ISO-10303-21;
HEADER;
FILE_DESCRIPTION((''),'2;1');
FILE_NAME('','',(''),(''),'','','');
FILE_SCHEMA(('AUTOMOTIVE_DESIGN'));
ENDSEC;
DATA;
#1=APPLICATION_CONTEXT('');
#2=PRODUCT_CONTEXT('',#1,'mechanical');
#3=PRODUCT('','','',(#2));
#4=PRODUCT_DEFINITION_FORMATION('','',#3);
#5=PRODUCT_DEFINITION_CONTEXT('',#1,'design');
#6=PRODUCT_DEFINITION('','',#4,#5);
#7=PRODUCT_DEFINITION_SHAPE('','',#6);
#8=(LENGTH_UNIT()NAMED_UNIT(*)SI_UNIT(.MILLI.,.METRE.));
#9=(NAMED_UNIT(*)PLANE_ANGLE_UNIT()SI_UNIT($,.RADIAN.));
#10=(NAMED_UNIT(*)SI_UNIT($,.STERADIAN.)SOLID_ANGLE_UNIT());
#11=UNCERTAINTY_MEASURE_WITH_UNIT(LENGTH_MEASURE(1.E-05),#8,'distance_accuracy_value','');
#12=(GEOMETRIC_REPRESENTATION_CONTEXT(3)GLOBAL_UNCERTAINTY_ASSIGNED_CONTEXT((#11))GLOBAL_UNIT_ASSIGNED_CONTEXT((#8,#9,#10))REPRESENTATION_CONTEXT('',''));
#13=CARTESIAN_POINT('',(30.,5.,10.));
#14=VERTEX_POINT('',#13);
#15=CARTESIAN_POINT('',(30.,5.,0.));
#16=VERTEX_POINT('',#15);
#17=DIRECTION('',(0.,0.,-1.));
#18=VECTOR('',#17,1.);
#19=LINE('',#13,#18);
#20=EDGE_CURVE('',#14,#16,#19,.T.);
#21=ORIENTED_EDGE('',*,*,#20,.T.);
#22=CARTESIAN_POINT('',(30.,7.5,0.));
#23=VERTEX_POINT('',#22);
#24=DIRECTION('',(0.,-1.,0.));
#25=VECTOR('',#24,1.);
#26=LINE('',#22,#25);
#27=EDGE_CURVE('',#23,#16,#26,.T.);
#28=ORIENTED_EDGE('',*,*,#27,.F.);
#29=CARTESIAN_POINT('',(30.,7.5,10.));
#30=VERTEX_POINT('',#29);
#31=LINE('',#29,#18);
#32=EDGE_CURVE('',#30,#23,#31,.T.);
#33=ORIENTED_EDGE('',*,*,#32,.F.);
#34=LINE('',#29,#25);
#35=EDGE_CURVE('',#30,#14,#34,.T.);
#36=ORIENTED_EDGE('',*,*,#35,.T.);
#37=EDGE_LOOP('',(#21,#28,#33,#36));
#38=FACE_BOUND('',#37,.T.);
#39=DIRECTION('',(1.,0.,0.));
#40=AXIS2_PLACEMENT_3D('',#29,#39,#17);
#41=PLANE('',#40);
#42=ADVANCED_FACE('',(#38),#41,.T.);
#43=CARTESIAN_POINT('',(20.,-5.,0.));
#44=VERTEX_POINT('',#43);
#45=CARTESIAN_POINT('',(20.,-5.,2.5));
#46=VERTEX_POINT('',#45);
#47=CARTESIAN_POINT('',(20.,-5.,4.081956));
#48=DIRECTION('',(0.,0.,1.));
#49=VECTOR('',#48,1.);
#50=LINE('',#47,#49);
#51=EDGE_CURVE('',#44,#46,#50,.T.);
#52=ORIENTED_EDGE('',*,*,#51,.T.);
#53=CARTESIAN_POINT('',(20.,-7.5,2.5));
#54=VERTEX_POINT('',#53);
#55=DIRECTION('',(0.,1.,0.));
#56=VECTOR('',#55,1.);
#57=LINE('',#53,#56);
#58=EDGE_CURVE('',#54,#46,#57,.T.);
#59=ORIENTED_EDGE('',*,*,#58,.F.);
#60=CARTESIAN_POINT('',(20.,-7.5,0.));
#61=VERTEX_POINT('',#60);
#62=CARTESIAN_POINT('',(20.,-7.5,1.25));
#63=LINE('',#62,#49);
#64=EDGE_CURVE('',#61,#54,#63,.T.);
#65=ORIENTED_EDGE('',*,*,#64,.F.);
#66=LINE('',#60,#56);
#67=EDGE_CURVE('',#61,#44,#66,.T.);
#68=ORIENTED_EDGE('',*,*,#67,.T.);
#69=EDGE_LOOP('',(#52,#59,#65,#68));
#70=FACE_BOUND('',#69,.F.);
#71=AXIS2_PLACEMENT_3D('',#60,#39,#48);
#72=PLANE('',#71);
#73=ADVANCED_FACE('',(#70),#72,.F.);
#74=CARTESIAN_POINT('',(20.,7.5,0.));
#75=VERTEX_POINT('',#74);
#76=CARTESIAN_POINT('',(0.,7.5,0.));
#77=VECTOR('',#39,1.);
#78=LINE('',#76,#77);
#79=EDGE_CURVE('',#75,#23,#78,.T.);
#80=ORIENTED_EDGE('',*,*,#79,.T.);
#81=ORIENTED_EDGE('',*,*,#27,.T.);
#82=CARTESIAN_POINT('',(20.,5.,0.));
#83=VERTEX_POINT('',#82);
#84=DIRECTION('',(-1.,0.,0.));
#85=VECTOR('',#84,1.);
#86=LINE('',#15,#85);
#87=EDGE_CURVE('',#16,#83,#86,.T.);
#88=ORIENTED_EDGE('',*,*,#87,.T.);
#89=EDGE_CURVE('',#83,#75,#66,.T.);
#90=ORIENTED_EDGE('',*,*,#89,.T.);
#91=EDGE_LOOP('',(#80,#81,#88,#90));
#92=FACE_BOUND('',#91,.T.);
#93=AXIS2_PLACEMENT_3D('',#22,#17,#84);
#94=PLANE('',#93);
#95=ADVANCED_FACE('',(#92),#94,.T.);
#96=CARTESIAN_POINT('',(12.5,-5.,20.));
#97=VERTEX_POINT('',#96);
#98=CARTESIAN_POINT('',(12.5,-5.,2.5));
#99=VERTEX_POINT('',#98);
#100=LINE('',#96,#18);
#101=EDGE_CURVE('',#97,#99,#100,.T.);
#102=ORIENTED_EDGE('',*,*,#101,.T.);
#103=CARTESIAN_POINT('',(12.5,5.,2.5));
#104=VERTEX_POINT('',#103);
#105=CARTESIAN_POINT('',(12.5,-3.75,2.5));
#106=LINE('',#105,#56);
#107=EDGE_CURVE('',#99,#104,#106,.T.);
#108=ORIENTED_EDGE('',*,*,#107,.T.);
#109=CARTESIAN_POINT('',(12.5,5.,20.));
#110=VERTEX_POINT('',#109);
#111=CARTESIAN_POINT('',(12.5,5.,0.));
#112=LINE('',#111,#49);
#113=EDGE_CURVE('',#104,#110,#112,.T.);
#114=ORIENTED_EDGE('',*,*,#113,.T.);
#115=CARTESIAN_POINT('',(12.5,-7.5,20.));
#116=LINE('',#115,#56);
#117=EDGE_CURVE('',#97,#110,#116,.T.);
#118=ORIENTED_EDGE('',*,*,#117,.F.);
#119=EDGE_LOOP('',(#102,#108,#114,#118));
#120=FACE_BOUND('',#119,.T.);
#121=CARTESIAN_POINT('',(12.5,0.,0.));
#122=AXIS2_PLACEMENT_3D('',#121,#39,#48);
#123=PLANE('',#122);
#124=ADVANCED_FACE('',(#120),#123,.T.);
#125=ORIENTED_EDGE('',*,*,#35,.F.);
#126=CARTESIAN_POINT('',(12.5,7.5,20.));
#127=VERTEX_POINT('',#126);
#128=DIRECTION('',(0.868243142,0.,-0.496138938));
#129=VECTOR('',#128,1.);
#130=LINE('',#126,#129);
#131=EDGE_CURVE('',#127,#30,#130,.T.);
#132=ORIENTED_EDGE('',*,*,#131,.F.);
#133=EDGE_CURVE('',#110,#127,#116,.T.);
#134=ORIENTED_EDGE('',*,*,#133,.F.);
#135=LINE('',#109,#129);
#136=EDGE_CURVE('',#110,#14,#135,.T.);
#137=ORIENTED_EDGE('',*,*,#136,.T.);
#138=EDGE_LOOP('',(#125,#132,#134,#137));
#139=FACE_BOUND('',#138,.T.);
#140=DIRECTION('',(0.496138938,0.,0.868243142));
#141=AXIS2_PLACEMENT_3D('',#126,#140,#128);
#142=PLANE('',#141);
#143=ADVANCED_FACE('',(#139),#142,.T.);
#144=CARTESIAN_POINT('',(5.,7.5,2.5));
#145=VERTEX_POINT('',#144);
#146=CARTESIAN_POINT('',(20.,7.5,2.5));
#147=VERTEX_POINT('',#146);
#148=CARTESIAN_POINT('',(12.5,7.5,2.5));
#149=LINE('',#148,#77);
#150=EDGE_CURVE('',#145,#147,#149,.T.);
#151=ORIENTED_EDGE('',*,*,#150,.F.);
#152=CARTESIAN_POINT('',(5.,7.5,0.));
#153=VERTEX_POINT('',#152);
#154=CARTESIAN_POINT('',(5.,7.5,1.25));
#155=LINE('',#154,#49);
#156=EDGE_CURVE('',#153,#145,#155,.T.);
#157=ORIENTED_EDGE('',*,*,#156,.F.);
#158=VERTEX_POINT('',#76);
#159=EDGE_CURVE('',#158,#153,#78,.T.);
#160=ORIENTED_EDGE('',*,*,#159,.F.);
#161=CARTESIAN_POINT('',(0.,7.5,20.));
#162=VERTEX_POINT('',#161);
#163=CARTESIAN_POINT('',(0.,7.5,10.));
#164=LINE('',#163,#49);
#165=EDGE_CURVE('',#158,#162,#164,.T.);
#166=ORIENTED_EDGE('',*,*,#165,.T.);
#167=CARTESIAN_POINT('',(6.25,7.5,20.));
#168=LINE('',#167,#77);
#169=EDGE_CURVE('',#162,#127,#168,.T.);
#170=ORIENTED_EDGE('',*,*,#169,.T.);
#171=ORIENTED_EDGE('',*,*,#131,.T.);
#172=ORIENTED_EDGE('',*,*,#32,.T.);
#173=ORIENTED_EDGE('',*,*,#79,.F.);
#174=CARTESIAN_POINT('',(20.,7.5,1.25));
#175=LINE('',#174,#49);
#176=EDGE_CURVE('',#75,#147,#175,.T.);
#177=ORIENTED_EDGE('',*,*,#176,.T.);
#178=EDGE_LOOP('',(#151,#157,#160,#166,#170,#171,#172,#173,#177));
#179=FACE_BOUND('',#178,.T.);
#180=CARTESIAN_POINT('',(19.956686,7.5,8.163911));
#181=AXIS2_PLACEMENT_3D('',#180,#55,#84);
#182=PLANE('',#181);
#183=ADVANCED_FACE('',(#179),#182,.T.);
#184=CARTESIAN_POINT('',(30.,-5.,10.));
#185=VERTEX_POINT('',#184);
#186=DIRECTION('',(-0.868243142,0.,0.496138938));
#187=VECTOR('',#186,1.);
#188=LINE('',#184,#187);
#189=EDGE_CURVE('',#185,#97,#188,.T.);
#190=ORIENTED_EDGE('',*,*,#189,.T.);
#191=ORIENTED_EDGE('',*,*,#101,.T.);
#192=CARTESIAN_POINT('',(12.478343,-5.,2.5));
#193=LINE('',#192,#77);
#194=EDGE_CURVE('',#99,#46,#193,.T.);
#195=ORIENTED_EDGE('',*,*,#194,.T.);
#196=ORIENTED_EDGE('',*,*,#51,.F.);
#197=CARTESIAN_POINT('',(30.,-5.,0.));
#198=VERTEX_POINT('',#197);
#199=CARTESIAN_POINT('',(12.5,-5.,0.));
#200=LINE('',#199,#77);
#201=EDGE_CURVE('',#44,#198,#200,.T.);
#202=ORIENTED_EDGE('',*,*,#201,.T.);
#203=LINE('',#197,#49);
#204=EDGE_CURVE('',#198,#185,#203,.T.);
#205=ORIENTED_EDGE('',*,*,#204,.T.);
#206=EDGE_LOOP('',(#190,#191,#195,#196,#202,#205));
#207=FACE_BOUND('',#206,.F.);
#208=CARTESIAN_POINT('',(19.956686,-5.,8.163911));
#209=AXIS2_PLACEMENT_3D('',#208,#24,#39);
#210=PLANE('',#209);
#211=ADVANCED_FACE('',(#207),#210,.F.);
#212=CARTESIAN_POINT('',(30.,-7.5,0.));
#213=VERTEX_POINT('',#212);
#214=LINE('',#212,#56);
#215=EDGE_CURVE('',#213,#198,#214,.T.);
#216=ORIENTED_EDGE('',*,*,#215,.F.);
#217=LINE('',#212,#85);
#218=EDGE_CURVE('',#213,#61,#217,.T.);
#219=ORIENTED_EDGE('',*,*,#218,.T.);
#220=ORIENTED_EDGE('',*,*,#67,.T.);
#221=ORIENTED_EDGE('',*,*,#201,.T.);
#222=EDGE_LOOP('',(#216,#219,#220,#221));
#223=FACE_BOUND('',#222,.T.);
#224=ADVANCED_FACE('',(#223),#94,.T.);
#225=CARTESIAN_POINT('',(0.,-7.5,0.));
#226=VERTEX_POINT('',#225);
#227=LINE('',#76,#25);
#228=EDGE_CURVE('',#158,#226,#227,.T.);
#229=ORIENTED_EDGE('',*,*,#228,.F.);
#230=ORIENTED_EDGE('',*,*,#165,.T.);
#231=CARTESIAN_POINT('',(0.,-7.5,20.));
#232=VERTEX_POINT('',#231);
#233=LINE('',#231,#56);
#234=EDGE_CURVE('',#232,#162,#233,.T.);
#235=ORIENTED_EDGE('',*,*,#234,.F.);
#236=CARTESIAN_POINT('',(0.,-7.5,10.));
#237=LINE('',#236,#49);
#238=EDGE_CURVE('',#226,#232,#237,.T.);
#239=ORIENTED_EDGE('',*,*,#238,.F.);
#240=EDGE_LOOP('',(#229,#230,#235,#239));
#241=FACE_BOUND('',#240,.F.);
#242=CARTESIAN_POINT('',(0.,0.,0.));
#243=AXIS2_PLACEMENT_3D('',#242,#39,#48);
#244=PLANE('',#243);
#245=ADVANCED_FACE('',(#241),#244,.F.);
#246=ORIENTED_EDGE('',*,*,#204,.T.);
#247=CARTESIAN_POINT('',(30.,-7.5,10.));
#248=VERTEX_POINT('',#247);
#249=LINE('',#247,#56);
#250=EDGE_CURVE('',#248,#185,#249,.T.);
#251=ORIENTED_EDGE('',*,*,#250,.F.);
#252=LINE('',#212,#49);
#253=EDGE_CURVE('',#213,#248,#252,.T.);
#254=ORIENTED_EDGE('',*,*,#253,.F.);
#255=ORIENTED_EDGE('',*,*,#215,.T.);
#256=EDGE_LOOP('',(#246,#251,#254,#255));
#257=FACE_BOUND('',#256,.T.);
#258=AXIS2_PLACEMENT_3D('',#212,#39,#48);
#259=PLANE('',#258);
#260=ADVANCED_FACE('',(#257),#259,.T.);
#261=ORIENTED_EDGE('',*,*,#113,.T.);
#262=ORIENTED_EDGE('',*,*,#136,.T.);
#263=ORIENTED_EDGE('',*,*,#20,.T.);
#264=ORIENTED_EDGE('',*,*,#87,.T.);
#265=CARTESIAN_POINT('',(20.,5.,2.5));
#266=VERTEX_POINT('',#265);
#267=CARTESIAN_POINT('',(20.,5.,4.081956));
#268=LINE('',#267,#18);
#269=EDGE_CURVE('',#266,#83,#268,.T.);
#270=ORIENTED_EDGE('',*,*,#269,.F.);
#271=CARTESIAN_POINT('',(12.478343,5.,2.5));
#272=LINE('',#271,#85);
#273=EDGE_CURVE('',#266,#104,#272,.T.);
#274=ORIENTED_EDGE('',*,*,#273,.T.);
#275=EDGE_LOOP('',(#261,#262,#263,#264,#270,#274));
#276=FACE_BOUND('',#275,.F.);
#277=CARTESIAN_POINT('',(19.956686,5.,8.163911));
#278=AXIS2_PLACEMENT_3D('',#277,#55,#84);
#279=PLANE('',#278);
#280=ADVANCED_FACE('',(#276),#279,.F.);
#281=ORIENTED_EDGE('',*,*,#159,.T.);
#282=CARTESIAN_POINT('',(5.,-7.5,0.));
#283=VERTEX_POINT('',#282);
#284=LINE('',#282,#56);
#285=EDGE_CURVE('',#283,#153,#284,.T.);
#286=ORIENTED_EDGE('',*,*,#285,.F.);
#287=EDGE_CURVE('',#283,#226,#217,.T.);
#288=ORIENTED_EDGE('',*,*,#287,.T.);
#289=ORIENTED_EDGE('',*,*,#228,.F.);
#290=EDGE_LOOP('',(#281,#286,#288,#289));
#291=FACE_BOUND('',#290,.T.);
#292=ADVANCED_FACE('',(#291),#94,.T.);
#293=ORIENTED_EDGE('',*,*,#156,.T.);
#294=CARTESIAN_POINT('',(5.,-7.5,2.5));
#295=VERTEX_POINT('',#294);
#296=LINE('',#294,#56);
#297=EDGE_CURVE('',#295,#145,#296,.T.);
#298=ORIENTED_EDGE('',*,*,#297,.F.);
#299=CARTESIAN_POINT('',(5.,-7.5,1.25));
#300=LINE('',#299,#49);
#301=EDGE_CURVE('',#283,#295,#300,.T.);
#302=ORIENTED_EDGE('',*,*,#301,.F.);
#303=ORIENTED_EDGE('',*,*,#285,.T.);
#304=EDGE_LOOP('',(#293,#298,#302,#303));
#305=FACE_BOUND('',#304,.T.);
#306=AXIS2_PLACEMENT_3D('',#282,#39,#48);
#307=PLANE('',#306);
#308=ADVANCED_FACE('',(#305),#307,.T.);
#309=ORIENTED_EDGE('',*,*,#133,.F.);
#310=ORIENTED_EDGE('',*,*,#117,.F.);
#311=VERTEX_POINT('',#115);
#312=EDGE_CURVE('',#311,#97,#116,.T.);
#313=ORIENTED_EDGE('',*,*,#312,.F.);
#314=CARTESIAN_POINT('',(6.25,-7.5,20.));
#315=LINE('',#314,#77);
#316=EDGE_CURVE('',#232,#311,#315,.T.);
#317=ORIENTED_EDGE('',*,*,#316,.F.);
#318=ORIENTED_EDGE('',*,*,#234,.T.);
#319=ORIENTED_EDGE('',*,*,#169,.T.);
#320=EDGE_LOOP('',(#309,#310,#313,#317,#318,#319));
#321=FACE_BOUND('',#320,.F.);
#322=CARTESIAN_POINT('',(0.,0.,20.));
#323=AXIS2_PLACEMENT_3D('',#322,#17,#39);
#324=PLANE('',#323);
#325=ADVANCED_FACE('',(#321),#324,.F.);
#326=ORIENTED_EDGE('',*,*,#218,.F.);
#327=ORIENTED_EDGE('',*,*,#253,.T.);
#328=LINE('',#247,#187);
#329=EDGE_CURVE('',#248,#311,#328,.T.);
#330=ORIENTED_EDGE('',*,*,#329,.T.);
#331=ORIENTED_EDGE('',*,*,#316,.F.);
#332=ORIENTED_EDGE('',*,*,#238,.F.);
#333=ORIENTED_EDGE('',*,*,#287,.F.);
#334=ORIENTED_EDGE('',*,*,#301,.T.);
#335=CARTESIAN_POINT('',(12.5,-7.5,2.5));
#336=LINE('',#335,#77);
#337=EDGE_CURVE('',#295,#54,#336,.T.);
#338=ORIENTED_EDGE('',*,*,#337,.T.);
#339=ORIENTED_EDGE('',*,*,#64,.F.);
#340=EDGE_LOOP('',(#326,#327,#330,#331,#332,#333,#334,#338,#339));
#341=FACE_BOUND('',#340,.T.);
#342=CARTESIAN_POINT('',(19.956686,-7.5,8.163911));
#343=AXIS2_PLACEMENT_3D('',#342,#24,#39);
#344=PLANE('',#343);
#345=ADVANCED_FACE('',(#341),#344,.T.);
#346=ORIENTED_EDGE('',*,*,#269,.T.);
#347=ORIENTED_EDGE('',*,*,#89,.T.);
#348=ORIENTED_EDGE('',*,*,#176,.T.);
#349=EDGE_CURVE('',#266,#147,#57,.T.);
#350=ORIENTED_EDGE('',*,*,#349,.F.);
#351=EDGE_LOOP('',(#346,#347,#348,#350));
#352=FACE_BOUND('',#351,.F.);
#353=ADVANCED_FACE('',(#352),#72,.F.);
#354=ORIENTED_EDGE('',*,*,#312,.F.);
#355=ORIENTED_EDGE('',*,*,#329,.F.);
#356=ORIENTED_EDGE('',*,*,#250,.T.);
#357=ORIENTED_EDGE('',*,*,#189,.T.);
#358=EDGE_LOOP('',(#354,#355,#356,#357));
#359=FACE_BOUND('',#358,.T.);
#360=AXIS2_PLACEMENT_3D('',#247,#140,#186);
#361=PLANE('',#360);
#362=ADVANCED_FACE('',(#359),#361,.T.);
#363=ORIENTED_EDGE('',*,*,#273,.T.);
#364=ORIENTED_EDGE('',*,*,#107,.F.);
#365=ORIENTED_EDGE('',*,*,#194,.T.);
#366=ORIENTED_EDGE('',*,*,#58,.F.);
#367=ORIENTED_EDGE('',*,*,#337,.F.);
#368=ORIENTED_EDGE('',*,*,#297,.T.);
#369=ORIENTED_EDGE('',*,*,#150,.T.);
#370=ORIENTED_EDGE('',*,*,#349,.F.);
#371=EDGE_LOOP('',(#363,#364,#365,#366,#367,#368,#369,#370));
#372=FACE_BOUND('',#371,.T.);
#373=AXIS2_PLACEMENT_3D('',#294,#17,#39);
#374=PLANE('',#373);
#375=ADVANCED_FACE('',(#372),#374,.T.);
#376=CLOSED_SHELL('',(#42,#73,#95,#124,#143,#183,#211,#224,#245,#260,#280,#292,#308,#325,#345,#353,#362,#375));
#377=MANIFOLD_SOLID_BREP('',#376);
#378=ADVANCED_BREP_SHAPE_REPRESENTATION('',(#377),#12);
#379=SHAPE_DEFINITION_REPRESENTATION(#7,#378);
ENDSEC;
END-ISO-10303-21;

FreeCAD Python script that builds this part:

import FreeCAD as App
import Part
import Sketcher

V = App.Vector

doc = App.newDocument("Part")
body = doc.addObject("PartDesign::Body", "Body")

# Sketch on XZ plane
sketch1 = doc.addObject("Sketcher::SketchObject", "Sketch")
body.addObject(sketch1)
sketch1.AttachmentSupport = (doc.XZ_Plane, [""])
sketch1.MapMode = "FlatFace"
sketch1.addGeometry(Part.LineSegment(V(0, 20, 0), V(0, 0, 0)), False)
sketch1.addGeometry(Part.LineSegment(V(0, 0, 0), V(12, 0, 0)), False)
sketch1.addGeometry(Part.LineSegment(V(12, 0, 0), V(12, 20, 0)), False)
sketch1.addGeometry(Part.LineSegment(V(12, 20, 0), V(0, 20, 0)), False)
sketch1.addConstraint(Sketcher.Constraint("Coincident", 0, 2, 1, 1))
sketch1.addConstraint(Sketcher.Constraint("Coincident", 1, 2, 2, 1))
sketch1.addConstraint(Sketcher.Constraint("Coincident", 2, 2, 3, 1))
sketch1.addConstraint(Sketcher.Constraint("Coincident", 3, 2, 0, 1))
sketch1.addConstraint(Sketcher.Constraint("Vertical", 0))
sketch1.addConstraint(Sketcher.Constraint("Horizontal", 1))
sketch1.addConstraint(Sketcher.Constraint("Vertical", 2))
sketch1.addConstraint(Sketcher.Constraint("Horizontal", 3))
sketch1.addConstraint(Sketcher.Constraint("Coincident", 0, 2, -1, 1))
sketch1.addConstraint(Sketcher.Constraint("DistanceY", 0, 2, 0, 1, 20.0))
sketch1.addConstraint(Sketcher.Constraint("DistanceX", 1, 1, 1, 2, 12.5))
pad1 = doc.addObject("PartDesign::Pad", "Pad")
body.addObject(pad1)
pad1.Profile = sketch1
pad1.Length = 15
pad1.Midplane = True

# Sketch on XZ plane
sketch2 = doc.addObject("Sketcher::SketchObject", "Sketch001")
body.addObject(sketch2)
sketch2.AttachmentSupport = (doc.XZ_Plane, [""])
sketch2.MapMode = "FlatFace"
sketch2.AttachmentOffset = App.Placement(V(0, 0, 7.5), App.Rotation())
sketch2.addGeometry(Part.LineSegment(V(12, 20, 0), V(12, 0, 0)), False)
sketch2.addGeometry(Part.LineSegment(V(12, 0, 0), V(30, 0, 0)), False)
sketch2.addGeometry(Part.LineSegment(V(30, 0, 0), V(30, 10, 0)), False)
sketch2.addGeometry(Part.LineSegment(V(30, 10, 0), V(12, 20, 0)), False)
sketch2.addConstraint(Sketcher.Constraint("Coincident", 0, 2, 1, 1))
sketch2.addConstraint(Sketcher.Constraint("Coincident", 1, 2, 2, 1))
sketch2.addConstraint(Sketcher.Constraint("Coincident", 2, 2, 3, 1))
sketch2.addConstraint(Sketcher.Constraint("Coincident", 3, 2, 0, 1))
sketch2.addConstraint(Sketcher.Constraint("Vertical", 0))
sketch2.addConstraint(Sketcher.Constraint("Horizontal", 1))
sketch2.addConstraint(Sketcher.Constraint("Vertical", 2))
sketch2.addConstraint(Sketcher.Constraint("PointOnObject", 0, 2, -1))
sketch2.addConstraint(Sketcher.Constraint("DistanceY", 0, 2, 0, 1, 20.0))
sketch2.addConstraint(Sketcher.Constraint("DistanceY", 2, 1, 2, 2, 10.0))
sketch2.addConstraint(Sketcher.Constraint("DistanceX", 1, 1, 1, 2, 17.5))
sketch2.addConstraint(Sketcher.Constraint("DistanceX", -1, 1, 1, 2, 30.0))
pad2 = doc.addObject("PartDesign::Pad", "Pad001")
body.addObject(pad2)
pad2.Profile = sketch2
pad2.Length = 2.5
pad2.Reversed = True

# Sketch on XZ plane
sketch3 = doc.addObject("Sketcher::SketchObject", "Sketch002")
body.addObject(sketch3)
sketch3.AttachmentSupport = (doc.XZ_Plane, [""])
sketch3.MapMode = "FlatFace"
sketch3.AttachmentOffset = App.Placement(V(0, 0, -7.5), App.Rotation())
sketch3.addGeometry(Part.LineSegment(V(30, 0, 0), V(12, 0, 0)), False)
sketch3.addGeometry(Part.LineSegment(V(12, 0, 0), V(12, 20, 0)), False)
sketch3.addGeometry(Part.LineSegment(V(12, 20, 0), V(30, 10, 0)), False)
sketch3.addGeometry(Part.LineSegment(V(30, 10, 0), V(30, 0, 0)), False)
sketch3.addConstraint(Sketcher.Constraint("Coincident", 0, 2, 1, 1))
sketch3.addConstraint(Sketcher.Constraint("Coincident", 1, 2, 2, 1))
sketch3.addConstraint(Sketcher.Constraint("Coincident", 2, 2, 3, 1))
sketch3.addConstraint(Sketcher.Constraint("Coincident", 3, 2, 0, 1))
sketch3.addConstraint(Sketcher.Constraint("Horizontal", 0))
sketch3.addConstraint(Sketcher.Constraint("Vertical", 1))
sketch3.addConstraint(Sketcher.Constraint("Vertical", 3))
sketch3.addConstraint(Sketcher.Constraint("PointOnObject", 0, 2, -1))
sketch3.addConstraint(Sketcher.Constraint("DistanceY", 1, 1, 1, 2, 20.0))
sketch3.addConstraint(Sketcher.Constraint("DistanceY", 3, 2, 3, 1, 10.0))
sketch3.addConstraint(Sketcher.Constraint("DistanceX", 0, 2, 0, 1, 17.5))
sketch3.addConstraint(Sketcher.Constraint("DistanceX", -1, 1, 2, 2, 30.0))
pad3 = doc.addObject("PartDesign::Pad", "Pad002")
body.addObject(pad3)
pad3.Profile = sketch3
pad3.Length = 2.5

# Sketch on XZ plane
sketch4 = doc.addObject("Sketcher::SketchObject", "Sketch003")
body.addObject(sketch4)
sketch4.AttachmentSupport = (doc.XZ_Plane, [""])
sketch4.MapMode = "FlatFace"
sketch4.AttachmentOffset = App.Placement(V(0, 0, 7.5), App.Rotation())
sketch4.addGeometry(Part.LineSegment(V(5, 2.5, 0), V(5, 0, 0)), False)
sketch4.addGeometry(Part.LineSegment(V(5, 0, 0), V(20, 0, 0)), False)
sketch4.addGeometry(Part.LineSegment(V(20, 0, 0), V(20, 2.5, 0)), False)
sketch4.addGeometry(Part.LineSegment(V(20, 2.5, 0), V(5, 2.5, 0)), False)
sketch4.addConstraint(Sketcher.Constraint("Coincident", 0, 2, 1, 1))
sketch4.addConstraint(Sketcher.Constraint("Coincident", 1, 2, 2, 1))
sketch4.addConstraint(Sketcher.Constraint("Coincident", 2, 2, 3, 1))
sketch4.addConstraint(Sketcher.Constraint("Coincident", 3, 2, 0, 1))
sketch4.addConstraint(Sketcher.Constraint("Vertical", 0))
sketch4.addConstraint(Sketcher.Constraint("Horizontal", 1))
sketch4.addConstraint(Sketcher.Constraint("Vertical", 2))
sketch4.addConstraint(Sketcher.Constraint("Horizontal", 3))
sketch4.addConstraint(Sketcher.Constraint("PointOnObject", 0, 2, -1))
sketch4.addConstraint(Sketcher.Constraint("DistanceX", 1, 1, 1, 2, 15.0))
sketch4.addConstraint(Sketcher.Constraint("DistanceY", 0, 2, 0, 1, 2.5))
sketch4.addConstraint(Sketcher.Constraint("DistanceX", -1, 1, 0, 2, 5.0))
pocket1 = doc.addObject("PartDesign::Pocket", "Pocket")
body.addObject(pocket1)
pocket1.Profile = sketch4
pocket1.Type = "ThroughAll"

doc.recompute()
